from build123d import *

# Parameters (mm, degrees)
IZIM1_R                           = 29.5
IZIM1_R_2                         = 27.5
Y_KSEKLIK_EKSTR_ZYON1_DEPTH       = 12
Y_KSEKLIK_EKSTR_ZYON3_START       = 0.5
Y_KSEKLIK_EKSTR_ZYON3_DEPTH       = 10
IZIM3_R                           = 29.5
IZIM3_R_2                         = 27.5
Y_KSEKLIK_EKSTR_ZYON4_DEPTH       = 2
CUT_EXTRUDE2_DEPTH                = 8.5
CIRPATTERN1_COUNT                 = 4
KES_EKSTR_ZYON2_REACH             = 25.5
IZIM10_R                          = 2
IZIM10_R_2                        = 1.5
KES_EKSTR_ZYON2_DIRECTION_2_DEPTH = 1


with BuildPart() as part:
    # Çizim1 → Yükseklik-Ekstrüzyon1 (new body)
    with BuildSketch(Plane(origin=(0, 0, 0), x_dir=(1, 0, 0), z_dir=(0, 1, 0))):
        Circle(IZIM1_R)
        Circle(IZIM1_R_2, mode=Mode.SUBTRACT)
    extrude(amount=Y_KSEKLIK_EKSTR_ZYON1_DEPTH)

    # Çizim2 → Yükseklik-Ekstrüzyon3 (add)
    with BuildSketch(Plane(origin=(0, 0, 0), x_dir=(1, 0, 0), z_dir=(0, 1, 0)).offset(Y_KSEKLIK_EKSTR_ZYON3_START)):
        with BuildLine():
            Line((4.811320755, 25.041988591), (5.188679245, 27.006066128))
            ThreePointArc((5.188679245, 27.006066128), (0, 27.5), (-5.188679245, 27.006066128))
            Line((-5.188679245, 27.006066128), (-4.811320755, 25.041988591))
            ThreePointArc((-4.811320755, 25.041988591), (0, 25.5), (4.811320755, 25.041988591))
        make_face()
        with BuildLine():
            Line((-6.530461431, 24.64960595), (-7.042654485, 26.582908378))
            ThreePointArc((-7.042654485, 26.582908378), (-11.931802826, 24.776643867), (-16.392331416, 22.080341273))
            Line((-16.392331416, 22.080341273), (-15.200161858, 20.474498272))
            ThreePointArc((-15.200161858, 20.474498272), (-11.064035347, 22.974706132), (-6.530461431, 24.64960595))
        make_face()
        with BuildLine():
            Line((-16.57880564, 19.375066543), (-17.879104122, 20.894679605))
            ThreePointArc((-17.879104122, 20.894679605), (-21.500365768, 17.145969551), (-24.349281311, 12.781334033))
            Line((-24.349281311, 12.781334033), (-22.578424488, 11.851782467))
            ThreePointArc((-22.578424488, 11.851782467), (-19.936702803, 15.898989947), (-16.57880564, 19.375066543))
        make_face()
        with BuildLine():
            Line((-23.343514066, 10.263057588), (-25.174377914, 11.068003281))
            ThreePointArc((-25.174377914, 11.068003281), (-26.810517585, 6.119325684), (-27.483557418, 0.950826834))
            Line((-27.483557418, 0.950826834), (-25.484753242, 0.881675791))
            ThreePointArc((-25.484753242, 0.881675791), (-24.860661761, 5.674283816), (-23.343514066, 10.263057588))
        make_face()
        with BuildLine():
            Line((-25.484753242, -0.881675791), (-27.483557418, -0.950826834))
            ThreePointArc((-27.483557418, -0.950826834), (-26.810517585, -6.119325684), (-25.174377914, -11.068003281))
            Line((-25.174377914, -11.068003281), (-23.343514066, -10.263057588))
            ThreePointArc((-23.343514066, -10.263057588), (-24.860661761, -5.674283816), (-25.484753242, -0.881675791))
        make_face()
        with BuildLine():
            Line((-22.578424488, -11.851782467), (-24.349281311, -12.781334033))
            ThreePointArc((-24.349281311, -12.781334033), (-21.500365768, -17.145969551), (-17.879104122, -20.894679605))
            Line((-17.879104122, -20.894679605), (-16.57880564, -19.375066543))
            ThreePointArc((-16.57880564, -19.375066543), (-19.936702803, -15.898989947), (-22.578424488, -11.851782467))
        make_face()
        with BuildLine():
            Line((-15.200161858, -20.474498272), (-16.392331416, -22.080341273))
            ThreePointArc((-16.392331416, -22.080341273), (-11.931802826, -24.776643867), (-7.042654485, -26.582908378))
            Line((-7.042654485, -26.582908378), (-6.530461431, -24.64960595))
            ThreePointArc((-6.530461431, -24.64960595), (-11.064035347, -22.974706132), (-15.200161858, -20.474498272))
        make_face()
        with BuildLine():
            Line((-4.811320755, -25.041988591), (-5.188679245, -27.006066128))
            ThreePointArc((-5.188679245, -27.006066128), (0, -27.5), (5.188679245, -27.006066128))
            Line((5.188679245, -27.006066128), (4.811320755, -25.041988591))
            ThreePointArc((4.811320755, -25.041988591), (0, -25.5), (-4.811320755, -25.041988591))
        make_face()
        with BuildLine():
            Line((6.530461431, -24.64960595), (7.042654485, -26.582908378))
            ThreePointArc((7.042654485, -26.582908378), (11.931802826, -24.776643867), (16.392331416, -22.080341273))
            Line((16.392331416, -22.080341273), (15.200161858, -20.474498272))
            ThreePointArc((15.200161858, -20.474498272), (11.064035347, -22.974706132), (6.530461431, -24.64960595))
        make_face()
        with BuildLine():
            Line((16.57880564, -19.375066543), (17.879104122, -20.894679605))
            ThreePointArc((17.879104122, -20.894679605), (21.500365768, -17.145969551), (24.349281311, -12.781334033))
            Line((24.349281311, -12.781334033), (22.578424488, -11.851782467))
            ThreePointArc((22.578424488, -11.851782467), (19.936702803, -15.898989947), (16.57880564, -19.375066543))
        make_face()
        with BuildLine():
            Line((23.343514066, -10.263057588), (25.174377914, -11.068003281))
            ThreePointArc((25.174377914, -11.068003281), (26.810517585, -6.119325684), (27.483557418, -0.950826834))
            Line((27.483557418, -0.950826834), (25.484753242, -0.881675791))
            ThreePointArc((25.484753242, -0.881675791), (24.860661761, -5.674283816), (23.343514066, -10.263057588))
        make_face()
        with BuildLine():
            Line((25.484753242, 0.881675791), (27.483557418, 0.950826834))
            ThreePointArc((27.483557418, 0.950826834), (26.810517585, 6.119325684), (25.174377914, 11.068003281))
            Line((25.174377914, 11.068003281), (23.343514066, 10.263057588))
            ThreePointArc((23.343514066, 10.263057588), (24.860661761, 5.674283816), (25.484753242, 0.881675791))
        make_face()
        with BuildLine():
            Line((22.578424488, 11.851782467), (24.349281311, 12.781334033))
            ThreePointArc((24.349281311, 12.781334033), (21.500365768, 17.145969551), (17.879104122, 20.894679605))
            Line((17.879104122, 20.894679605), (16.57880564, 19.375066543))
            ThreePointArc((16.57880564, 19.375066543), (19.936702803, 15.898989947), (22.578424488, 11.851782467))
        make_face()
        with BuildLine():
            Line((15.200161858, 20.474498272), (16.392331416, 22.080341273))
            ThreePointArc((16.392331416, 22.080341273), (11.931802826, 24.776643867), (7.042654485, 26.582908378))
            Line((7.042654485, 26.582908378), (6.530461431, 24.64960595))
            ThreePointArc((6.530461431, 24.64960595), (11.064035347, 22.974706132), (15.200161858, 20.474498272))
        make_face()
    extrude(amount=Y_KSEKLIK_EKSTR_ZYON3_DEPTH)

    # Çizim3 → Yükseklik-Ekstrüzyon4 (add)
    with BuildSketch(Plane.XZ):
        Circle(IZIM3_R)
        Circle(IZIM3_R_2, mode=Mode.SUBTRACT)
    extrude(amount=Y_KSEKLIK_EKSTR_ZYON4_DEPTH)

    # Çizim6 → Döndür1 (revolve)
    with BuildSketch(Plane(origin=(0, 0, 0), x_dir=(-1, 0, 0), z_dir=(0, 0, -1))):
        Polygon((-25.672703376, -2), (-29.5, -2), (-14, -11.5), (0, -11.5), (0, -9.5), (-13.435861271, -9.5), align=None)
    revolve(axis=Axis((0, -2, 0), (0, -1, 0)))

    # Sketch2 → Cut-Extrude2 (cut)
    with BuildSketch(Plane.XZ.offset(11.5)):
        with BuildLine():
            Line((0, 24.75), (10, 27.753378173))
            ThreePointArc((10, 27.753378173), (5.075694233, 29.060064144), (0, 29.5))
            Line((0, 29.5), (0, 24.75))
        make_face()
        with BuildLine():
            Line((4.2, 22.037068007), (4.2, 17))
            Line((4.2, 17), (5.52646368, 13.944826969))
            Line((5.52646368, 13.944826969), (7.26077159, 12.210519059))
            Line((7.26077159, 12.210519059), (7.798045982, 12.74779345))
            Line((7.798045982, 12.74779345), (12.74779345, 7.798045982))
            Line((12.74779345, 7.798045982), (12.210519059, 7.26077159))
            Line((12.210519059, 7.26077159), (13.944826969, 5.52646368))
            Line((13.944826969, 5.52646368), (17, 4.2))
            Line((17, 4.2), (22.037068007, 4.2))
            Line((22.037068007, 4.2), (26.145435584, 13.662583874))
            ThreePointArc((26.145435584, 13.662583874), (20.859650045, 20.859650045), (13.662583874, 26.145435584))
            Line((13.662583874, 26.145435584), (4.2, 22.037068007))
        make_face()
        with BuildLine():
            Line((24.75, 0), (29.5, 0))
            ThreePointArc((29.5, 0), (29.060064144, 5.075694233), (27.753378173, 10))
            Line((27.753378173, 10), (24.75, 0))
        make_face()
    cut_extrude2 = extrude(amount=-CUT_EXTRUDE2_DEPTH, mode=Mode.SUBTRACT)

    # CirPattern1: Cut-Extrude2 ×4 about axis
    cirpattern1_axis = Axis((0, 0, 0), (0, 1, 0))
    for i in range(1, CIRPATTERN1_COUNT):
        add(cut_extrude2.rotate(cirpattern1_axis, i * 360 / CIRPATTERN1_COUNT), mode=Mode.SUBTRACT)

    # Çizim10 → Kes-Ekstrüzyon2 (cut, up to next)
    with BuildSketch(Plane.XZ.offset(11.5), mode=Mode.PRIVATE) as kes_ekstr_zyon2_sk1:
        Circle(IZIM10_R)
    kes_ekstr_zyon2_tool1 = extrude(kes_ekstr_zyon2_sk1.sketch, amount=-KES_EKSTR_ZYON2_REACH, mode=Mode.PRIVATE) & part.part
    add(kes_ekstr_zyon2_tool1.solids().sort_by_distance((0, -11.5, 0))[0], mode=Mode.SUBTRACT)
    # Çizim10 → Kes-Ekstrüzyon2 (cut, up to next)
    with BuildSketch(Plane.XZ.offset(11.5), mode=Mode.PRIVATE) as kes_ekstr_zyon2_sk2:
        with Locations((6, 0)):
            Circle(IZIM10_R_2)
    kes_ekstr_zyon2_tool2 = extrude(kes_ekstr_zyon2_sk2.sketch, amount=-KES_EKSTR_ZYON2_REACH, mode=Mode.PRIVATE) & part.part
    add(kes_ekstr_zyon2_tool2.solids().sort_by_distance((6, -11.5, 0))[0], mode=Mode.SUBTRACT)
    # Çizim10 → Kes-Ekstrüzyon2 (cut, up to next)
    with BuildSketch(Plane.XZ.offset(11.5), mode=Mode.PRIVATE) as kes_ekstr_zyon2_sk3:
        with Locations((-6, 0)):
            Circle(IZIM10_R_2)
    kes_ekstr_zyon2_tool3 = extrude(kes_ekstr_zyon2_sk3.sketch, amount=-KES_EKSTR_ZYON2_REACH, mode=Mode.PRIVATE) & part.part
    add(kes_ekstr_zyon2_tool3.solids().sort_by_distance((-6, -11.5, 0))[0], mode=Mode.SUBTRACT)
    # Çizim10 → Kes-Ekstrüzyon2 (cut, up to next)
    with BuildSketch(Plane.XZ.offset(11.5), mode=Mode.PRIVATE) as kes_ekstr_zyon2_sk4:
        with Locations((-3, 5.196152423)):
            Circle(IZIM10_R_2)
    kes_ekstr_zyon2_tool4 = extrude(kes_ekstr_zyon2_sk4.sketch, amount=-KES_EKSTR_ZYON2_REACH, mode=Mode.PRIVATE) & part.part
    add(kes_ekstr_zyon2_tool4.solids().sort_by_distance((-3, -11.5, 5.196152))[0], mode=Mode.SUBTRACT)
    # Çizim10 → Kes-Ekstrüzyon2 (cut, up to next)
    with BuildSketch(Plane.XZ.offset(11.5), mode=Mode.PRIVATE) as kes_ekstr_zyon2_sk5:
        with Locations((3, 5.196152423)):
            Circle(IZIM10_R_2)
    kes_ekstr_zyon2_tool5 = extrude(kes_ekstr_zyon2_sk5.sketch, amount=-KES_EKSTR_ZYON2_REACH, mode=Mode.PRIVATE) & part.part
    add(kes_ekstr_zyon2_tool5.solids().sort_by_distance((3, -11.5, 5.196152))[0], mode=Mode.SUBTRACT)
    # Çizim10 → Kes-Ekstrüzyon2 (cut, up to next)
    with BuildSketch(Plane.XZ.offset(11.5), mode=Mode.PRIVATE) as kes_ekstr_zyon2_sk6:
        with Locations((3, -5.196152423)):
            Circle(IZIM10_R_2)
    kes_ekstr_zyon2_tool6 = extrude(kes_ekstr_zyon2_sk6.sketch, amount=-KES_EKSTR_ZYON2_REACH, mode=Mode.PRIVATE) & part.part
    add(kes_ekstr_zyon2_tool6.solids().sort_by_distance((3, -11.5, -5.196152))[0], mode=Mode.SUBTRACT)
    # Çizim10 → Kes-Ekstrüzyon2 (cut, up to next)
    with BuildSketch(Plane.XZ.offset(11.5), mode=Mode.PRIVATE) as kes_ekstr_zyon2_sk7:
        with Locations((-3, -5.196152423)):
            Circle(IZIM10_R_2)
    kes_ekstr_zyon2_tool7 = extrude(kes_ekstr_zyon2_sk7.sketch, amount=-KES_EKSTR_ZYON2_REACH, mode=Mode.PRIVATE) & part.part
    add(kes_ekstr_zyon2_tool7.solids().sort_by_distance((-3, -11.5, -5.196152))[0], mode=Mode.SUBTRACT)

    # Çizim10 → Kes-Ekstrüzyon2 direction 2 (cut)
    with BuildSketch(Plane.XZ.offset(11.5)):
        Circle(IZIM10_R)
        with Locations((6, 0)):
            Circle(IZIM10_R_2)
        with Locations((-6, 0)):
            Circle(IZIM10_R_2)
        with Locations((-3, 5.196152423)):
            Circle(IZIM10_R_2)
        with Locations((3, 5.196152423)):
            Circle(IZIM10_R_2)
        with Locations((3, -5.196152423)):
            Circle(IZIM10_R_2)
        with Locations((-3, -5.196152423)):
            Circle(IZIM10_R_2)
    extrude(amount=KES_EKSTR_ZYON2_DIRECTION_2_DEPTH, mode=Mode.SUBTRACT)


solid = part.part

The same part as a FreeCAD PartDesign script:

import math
import FreeCAD as App
import Part
import Sketcher
from FreeCAD import Vector
Q = App.Units.Quantity

doc = App.newDocument("Part")
params = doc.addObject("Spreadsheet::Sheet", "Params")
for row, (alias, value) in enumerate([
    ("sketch1_diameter", "59 mm"),
    ("sketch1_diameter2", "55 mm"),
    ("pad1_length", "12 mm"),
    ("sketch2_radius", "27.5 mm"),
    ("sketch2_radius2", "25.5 mm"),
    ("pad2_length", "10 mm"),
    ("sketch3_diameter", "59 mm"),
    ("sketch3_diameter2", "55 mm"),
    ("pad3_length", "2 mm"),
    ("sketch4_width", "14 mm"),
    ("sketch4_height", "2 mm"),
    ("revolution_angle", "360 deg"),
    ("sketch5_radius", "29.5 mm"),
    ("sketch5_length", "7 mm"),
    ("sketch5_width", "4.75 mm"),
    ("pocket1_length", "8.5 mm"),
    ("sketch6_diameter", "4 mm"),
    ("sketch7_diameter", "3 mm"),
    ("sketch8_diameter", "3 mm"),
    ("sketch9_diameter", "3 mm"),
    ("sketch10_diameter", "3 mm"),
    ("sketch11_diameter", "3 mm"),
    ("sketch12_diameter", "3 mm"),
    ("sketch13_diameter", "4 mm"),
    ("sketch13_diameter2", "3 mm"),
    ("pocket9_length", "1 mm"),
], start=1):
    params.set(f"A{row}", alias)
    params.set(f"B{row}", "=" + value)
    params.setAlias(f"B{row}", alias)

body = doc.addObject("PartDesign::Body", "Body")

# Sketch on XZ plane
sketch1 = body.newObject("Sketcher::SketchObject", "Sketch")
sketch1.AttachmentSupport = (doc.getObject("XZ_Plane"), [""])
sketch1.MapMode = "FlatFace"
sketch1.addGeometry(Part.Circle(Vector(0, 0, 0), Vector(0, 0, 1), 30), False)
sketch1.addGeometry(Part.Circle(Vector(0, 0, 0), Vector(0, 0, 1), 28), False)
sketch1.addConstraint(Sketcher.Constraint("Coincident", 0, 3, -1, 1))
sketch1.addConstraint(Sketcher.Constraint("Coincident", 1, 3, -1, 1))
sketch1.addConstraint(Sketcher.Constraint("Diameter", 0, 59.0))
sketch1.addConstraint(Sketcher.Constraint("Diameter", 1, 55.0))
sketch1.setExpression("Constraints[2]", "Params.sketch1_diameter")
sketch1.setExpression("Constraints[3]", "Params.sketch1_diameter2")
pad1 = body.newObject("PartDesign::Pad", "Pad")
pad1.Profile = sketch1
pad1.setExpression("Length", "Params.pad1_length")
pad1.Reversed = True

# Sketch on XZ plane
sketch2 = body.newObject("Sketcher::SketchObject", "Sketch001")
sketch2.AttachmentSupport = (doc.getObject("XZ_Plane"), [""])
sketch2.MapMode = "FlatFace"
sketch2.AttachmentOffset = App.Placement(Vector(0, 0, -0.5), App.Rotation())
sketch2.addGeometry(Part.LineSegment(Vector(4.8, -25, 0), Vector(5.2, -27, 0)), False)
sketch2.addGeometry(Part.ArcOfCircle(Part.Circle(Vector(0, 0, 0), Vector(0, 0, 1), 27.5), math.radians(-101), math.radians(-79)), False)
sketch2.addGeometry(Part.LineSegment(Vector(-5.2, -27, 0), Vector(-4.8, -25, 0)), False)
sketch2.addGeometry(Part.ArcOfCircle(Part.Circle(Vector(0, 0, 0), Vector(0, 0, 1), 25.5), math.radians(-101), math.radians(-79)), False)
sketch2.addGeometry(Part.LineSegment(Vector(-6.5, -24.6, 0), Vector(-7, -26.6, 0)), False)
sketch2.addGeometry(Part.ArcOfCircle(Part.Circle(Vector(0, 0, 0), Vector(0, 0, 1), 27.5), math.radians(-127), math.radians(-105)), False)
sketch2.addGeometry(Part.LineSegment(Vector(-16.4, -22.1, 0), Vector(-15.2, -20.5, 0)), False)
sketch2.addGeometry(Part.ArcOfCircle(Part.Circle(Vector(0, 0, 0), Vector(0, 0, 1), 25.5), math.radians(-127), math.radians(-105)), False)
sketch2.addGeometry(Part.LineSegment(Vector(-16.6, -19.4, 0), Vector(-17.9, -20.9, 0)), False)
sketch2.addGeometry(Part.ArcOfCircle(Part.Circle(Vector(0, 0, 0), Vector(0, 0, 1), 27.5), math.radians(-152), math.radians(-131)), False)
sketch2.addGeometry(Part.LineSegment(Vector(-24.3, -12.8, 0), Vector(-22.6, -11.9, 0)), False)
sketch2.addGeometry(Part.ArcOfCircle(Part.Circle(Vector(0, 0, 0), Vector(0, 0, 1), 25.5), math.radians(-152), math.radians(-131)), False)
sketch2.addGeometry(Part.LineSegment(Vector(-23.3, -10.3, 0), Vector(-25.2, -11.1, 0)), False)
sketch2.addGeometry(Part.ArcOfCircle(Part.Circle(Vector(0, 0, 0), Vector(0, 0, 1), 27.5), math.radians(-178), math.radians(-156)), False)
sketch2.addGeometry(Part.LineSegment(Vector(-27.5, -1, 0), Vector(-25.5, -0.9, 0)), False)
sketch2.addGeometry(Part.ArcOfCircle(Part.Circle(Vector(0, 0, 0), Vector(0, 0, 1), 25.5), math.radians(-178), math.radians(-156)), False)
sketch2.addGeometry(Part.LineSegment(Vector(-25.5, 0.9, 0), Vector(-27.5, 1, 0)), False)
sketch2.addGeometry(Part.ArcOfCircle(Part.Circle(Vector(0, 0, 0), Vector(0, 0, 1), 27.5), math.radians(156), math.radians(178)), False)
sketch2.addGeometry(Part.LineSegment(Vector(-25.2, 11.1, 0), Vector(-23.3, 10.3, 0)), False)
sketch2.addGeometry(Part.ArcOfCircle(Part.Circle(Vector(0, 0, 0), Vector(0, 0, 1), 25.5), math.radians(156), math.radians(178)), False)
sketch2.addGeometry(Part.LineSegment(Vector(-22.6, 11.9, 0), Vector(-24.3, 12.8, 0)), False)
sketch2.addGeometry(Part.ArcOfCircle(Part.Circle(Vector(0, 0, 0), Vector(0, 0, 1), 27.5), math.radians(131), math.radians(152)), False)
sketch2.addGeometry(Part.LineSegment(Vector(-17.9, 20.9, 0), Vector(-16.6, 19.4, 0)), False)
sketch2.addGeometry(Part.ArcOfCircle(Part.Circle(Vector(0, 0, 0), Vector(0, 0, 1), 25.5), math.radians(131), math.radians(152)), False)
sketch2.addGeometry(Part.LineSegment(Vector(-15.2, 20.5, 0), Vector(-16.4, 22.1, 0)), False)
sketch2.addGeometry(Part.ArcOfCircle(Part.Circle(Vector(0, 0, 0), Vector(0, 0, 1), 27.5), math.radians(105), math.radians(127)), False)
sketch2.addGeometry(Part.LineSegment(Vector(-7, 26.6, 0), Vector(-6.5, 24.6, 0)), False)
sketch2.addGeometry(Part.ArcOfCircle(Part.Circle(Vector(0, 0, 0), Vector(0, 0, 1), 25.5), math.radians(105), math.radians(127)), False)
sketch2.addGeometry(Part.LineSegment(Vector(-4.8, 25, 0), Vector(-5.2, 27, 0)), False)
sketch2.addGeometry(Part.ArcOfCircle(Part.Circle(Vector(0, 0, 0), Vector(0, 0, 1), 27.5), math.radians(79), math.radians(101)), False)
sketch2.addGeometry(Part.LineSegment(Vector(5.2, 27, 0), Vector(4.8, 25, 0)), False)
sketch2.addGeometry(Part.ArcOfCircle(Part.Circle(Vector(0, 0, 0), Vector(0, 0, 1), 25.5), math.radians(79), math.radians(101)), False)
sketch2.addGeometry(Part.LineSegment(Vector(6.5, 24.6, 0), Vector(7, 26.6, 0)), False)
sketch2.addGeometry(Part.ArcOfCircle(Part.Circle(Vector(0, 0, 0), Vector(0, 0, 1), 27.5), math.radians(53), math.radians(75)), False)
sketch2.addGeometry(Part.LineSegment(Vector(16.4, 22.1, 0), Vector(15.2, 20.5, 0)), False)
sketch2.addGeometry(Part.ArcOfCircle(Part.Circle(Vector(0, 0, 0), Vector(0, 0, 1), 25.5), math.radians(53), math.radians(75)), False)
sketch2.addGeometry(Part.LineSegment(Vector(16.6, 19.4, 0), Vector(17.9, 20.9, 0)), False)
sketch2.addGeometry(Part.ArcOfCircle(Part.Circle(Vector(0, 0, 0), Vector(0, 0, 1), 27.5), math.radians(28), math.radians(49)), False)
sketch2.addGeometry(Part.LineSegment(Vector(24.3, 12.8, 0), Vector(22.6, 11.9, 0)), False)
sketch2.addGeometry(Part.ArcOfCircle(Part.Circle(Vector(0, 0, 0), Vector(0, 0, 1), 25.5), math.radians(28), math.radians(49)), False)
sketch2.addGeometry(Part.LineSegment(Vector(23.3, 10.3, 0), Vector(25.2, 11.1, 0)), False)
sketch2.addGeometry(Part.ArcOfCircle(Part.Circle(Vector(0, 0, 0), Vector(0, 0, 1), 27.5), math.radians(2), math.radians(24)), False)
sketch2.addGeometry(Part.LineSegment(Vector(27.5, 1, 0), Vector(25.5, 0.9, 0)), False)
sketch2.addGeometry(Part.ArcOfCircle(Part.Circle(Vector(0, 0, 0), Vector(0, 0, 1), 25.5), math.radians(2), math.radians(24)), False)
sketch2.addGeometry(Part.LineSegment(Vector(25.5, -0.9, 0), Vector(27.5, -1, 0)), False)
sketch2.addGeometry(Part.ArcOfCircle(Part.Circle(Vector(0, 0, 0), Vector(0, 0, 1), 27.5), math.radians(-24), math.radians(-2)), False)
sketch2.addGeometry(Part.LineSegment(Vector(25.2, -11.1, 0), Vector(23.3, -10.3, 0)), False)
sketch2.addGeometry(Part.ArcOfCircle(Part.Circle(Vector(0, 0, 0), Vector(0, 0, 1), 25.5), math.radians(-24), math.radians(-2)), False)
sketch2.addGeometry(Part.LineSegment(Vector(22.6, -11.9, 0), Vector(24.3, -12.8, 0)), False)
sketch2.addGeometry(Part.ArcOfCircle(Part.Circle(Vector(0, 0, 0), Vector(0, 0, 1), 27.5), math.radians(-49), math.radians(-28)), False)
sketch2.addGeometry(Part.LineSegment(Vector(17.9, -20.9, 0), Vector(16.6, -19.4, 0)), False)
sketch2.addGeometry(Part.ArcOfCircle(Part.Circle(Vector(0, 0, 0), Vector(0, 0, 1), 25.5), math.radians(-49), math.radians(-28)), False)
sketch2.addGeometry(Part.LineSegment(Vector(15.2, -20.5, 0), Vector(16.4, -22.1, 0)), False)
sketch2.addGeometry(Part.ArcOfCircle(Part.Circle(Vector(0, 0, 0), Vector(0, 0, 1), 27.5), math.radians(-75), math.radians(-53)), False)
sketch2.addGeometry(Part.LineSegment(Vector(7, -26.6, 0), Vector(6.5, -24.6, 0)), False)
sketch2.addGeometry(Part.ArcOfCircle(Part.Circle(Vector(0, 0, 0), Vector(0, 0, 1), 25.5), math.radians(-75), math.radians(-53)), False)
sketch2.addConstraint(Sketcher.Constraint("Coincident", 0, 2, 1, 2))
sketch2.addConstraint(Sketcher.Constraint("Coincident", 1, 1, 2, 1))
sketch2.addConstraint(Sketcher.Constraint("Coincident", 2, 2, 3, 1))
sketch2.addConstraint(Sketcher.Constraint("Coincident", 3, 2, 0, 1))
sketch2.addConstraint(Sketcher.Constraint("Coincident", 4, 2, 5, 2))
sketch2.addConstraint(Sketcher.Constraint("Coincident", 5, 1, 6, 1))
sketch2.addConstraint(Sketcher.Constraint("Coincident", 6, 2, 7, 1))
sketch2.addConstraint(Sketcher.Constraint("Coincident", 7, 2, 4, 1))
sketch2.addConstraint(Sketcher.Constraint("Coincident", 8, 2, 9, 2))
sketch2.addConstraint(Sketcher.Constraint("Coincident", 9, 1, 10, 1))
sketch2.addConstraint(Sketcher.Constraint("Coincident", 10, 2, 11, 1))
sketch2.addConstraint(Sketcher.Constraint("Coincident", 11, 2, 8, 1))
sketch2.addConstraint(Sketcher.Constraint("Coincident", 12, 2, 13, 2))
sketch2.addConstraint(Sketcher.Constraint("Coincident", 13, 1, 14, 1))
sketch2.addConstraint(Sketcher.Constraint("Coincident", 14, 2, 15, 1))
sketch2.addConstraint(Sketcher.Constraint("Coincident", 15, 2, 12, 1))
sketch2.addConstraint(Sketcher.Constraint("Coincident", 16, 2, 17, 2))
sketch2.addConstraint(Sketcher.Constraint("Coincident", 17, 1, 18, 1))
sketch2.addConstraint(Sketcher.Constraint("Coincident", 18, 2, 19, 1))
sketch2.addConstraint(Sketcher.Constraint("Coincident", 19, 2, 16, 1))
sketch2.addConstraint(Sketcher.Constraint("Coincident", 20, 2, 21, 2))
sketch2.addConstraint(Sketcher.Constraint("Coincident", 21, 1, 22, 1))
sketch2.addConstraint(Sketcher.Constraint("Coincident", 22, 2, 23, 1))
sketch2.addConstraint(Sketcher.Constraint("Coincident", 23, 2, 20, 1))
sketch2.addConstraint(Sketcher.Constraint("Coincident", 24, 2, 25, 2))
sketch2.addConstraint(Sketcher.Constraint("Coincident", 25, 1, 26, 1))
sketch2.addConstraint(Sketcher.Constraint("Coincident", 26, 2, 27, 1))
sketch2.addConstraint(Sketcher.Constraint("Coincident", 27, 2, 24, 1))
sketch2.addConstraint(Sketcher.Constraint("Coincident", 28, 2, 29, 2))
sketch2.addConstraint(Sketcher.Constraint("Coincident", 29, 1, 30, 1))
sketch2.addConstraint(Sketcher.Constraint("Coincident", 30, 2, 31, 1))
sketch2.addConstraint(Sketcher.Constraint("Coincident", 31, 2, 28, 1))
sketch2.addConstraint(Sketcher.Constraint("Coincident", 32, 2, 33, 2))
sketch2.addConstraint(Sketcher.Constraint("Coincident", 33, 1, 34, 1))
sketch2.addConstraint(Sketcher.Constraint("Coincident", 34, 2, 35, 1))
sketch2.addConstraint(Sketcher.Constraint("Coincident", 35, 2, 32, 1))
sketch2.addConstraint(Sketcher.Constraint("Coincident", 36, 2, 37, 2))
sketch2.addConstraint(Sketcher.Constraint("Coincident", 37, 1, 38, 1))
sketch2.addConstraint(Sketcher.Constraint("Coincident", 38, 2, 39, 1))
sketch2.addConstraint(Sketcher.Constraint("Coincident", 39, 2, 36, 1))
sketch2.addConstraint(Sketcher.Constraint("Coincident", 40, 2, 41, 2))
sketch2.addConstraint(Sketcher.Constraint("Coincident", 41, 1, 42, 1))
sketch2.addConstraint(Sketcher.Constraint("Coincident", 42, 2, 43, 1))
sketch2.addConstraint(Sketcher.Constraint("Coincident", 43, 2, 40, 1))
sketch2.addConstraint(Sketcher.Constraint("Coincident", 44, 2, 45, 2))
sketch2.addConstraint(Sketcher.Constraint("Coincident", 45, 1, 46, 1))
sketch2.addConstraint(Sketcher.Constraint("Coincident", 46, 2, 47, 1))
sketch2.addConstraint(Sketcher.Constraint("Coincident", 47, 2, 44, 1))
sketch2.addConstraint(Sketcher.Constraint("Coincident", 48, 2, 49, 2))
sketch2.addConstraint(Sketcher.Constraint("Coincident", 49, 1, 50, 1))
sketch2.addConstraint(Sketcher.Constraint("Coincident", 50, 2, 51, 1))
sketch2.addConstraint(Sketcher.Constraint("Coincident", 51, 2, 48, 1))
sketch2.addConstraint(Sketcher.Constraint("Coincident", 52, 2, 53, 2))
sketch2.addConstraint(Sketcher.Constraint("Coincident", 53, 1, 54, 1))
sketch2.addConstraint(Sketcher.Constraint("Coincident", 54, 2, 55, 1))
sketch2.addConstraint(Sketcher.Constraint("Coincident", 55, 2, 52, 1))
sketch2.addConstraint(Sketcher.Constraint("Coincident", 1, 3, -1, 1))
sketch2.addConstraint(Sketcher.Constraint("Coincident", 3, 3, -1, 1))
sketch2.addConstraint(Sketcher.Constraint("Coincident", 5, 3, -1, 1))
sketch2.addConstraint(Sketcher.Constraint("Coincident", 7, 3, -1, 1))
sketch2.addConstraint(Sketcher.Constraint("Coincident", 9, 3, -1, 1))
sketch2.addConstraint(Sketcher.Constraint("Coincident", 11, 3, -1, 1))
sketch2.addConstraint(Sketcher.Constraint("Coincident", 13, 3, -1, 1))
sketch2.addConstraint(Sketcher.Constraint("Coincident", 15, 3, -1, 1))
sketch2.addConstraint(Sketcher.Constraint("Coincident", 17, 3, -1, 1))
sketch2.addConstraint(Sketcher.Constraint("Coincident", 19, 3, -1, 1))
sketch2.addConstraint(Sketcher.Constraint("Coincident", 21, 3, -1, 1))
sketch2.addConstraint(Sketcher.Constraint("Coincident", 23, 3, -1, 1))
sketch2.addConstraint(Sketcher.Constraint("Coincident", 25, 3, -1, 1))
sketch2.addConstraint(Sketcher.Constraint("Coincident", 27, 3, -1, 1))
sketch2.addConstraint(Sketcher.Constraint("Coincident", 29, 3, -1, 1))
sketch2.addConstraint(Sketcher.Constraint("Coincident", 31, 3, -1, 1))
sketch2.addConstraint(Sketcher.Constraint("Coincident", 33, 3, -1, 1))
sketch2.addConstraint(Sketcher.Constraint("Coincident", 35, 3, -1, 1))
sketch2.addConstraint(Sketcher.Constraint("Coincident", 37, 3, -1, 1))
sketch2.addConstraint(Sketcher.Constraint("Coincident", 39, 3, -1, 1))
sketch2.addConstraint(Sketcher.Constraint("Coincident", 41, 3, -1, 1))
sketch2.addConstraint(Sketcher.Constraint("Coincident", 43, 3, -1, 1))
sketch2.addConstraint(Sketcher.Constraint("Coincident", 45, 3, -1, 1))
sketch2.addConstraint(Sketcher.Constraint("Coincident", 47, 3, -1, 1))
sketch2.addConstraint(Sketcher.Constraint("Coincident", 49, 3, -1, 1))
sketch2.addConstraint(Sketcher.Constraint("Coincident", 51, 3, -1, 1))
sketch2.addConstraint(Sketcher.Constraint("Coincident", 53, 3, -1, 1))
sketch2.addConstraint(Sketcher.Constraint("Coincident", 55, 3, -1, 1))
sketch2.addConstraint(Sketcher.Constraint("Equal", 1, 5))
sketch2.addConstraint(Sketcher.Constraint("Equal", 3, 7))
sketch2.addConstraint(Sketcher.Constraint("Equal", 5, 9))
sketch2.addConstraint(Sketcher.Constraint("Equal", 7, 11))
sketch2.addConstraint(Sketcher.Constraint("Equal", 9, 13))
sketch2.addConstraint(Sketcher.Constraint("Equal", 11, 15))
sketch2.addConstraint(Sketcher.Constraint("Equal", 13, 17))
sketch2.addConstraint(Sketcher.Constraint("Equal", 15, 19))
sketch2.addConstraint(Sketcher.Constraint("Equal", 17, 21))
sketch2.addConstraint(Sketcher.Constraint("Equal", 19, 23))
sketch2.addConstraint(Sketcher.Constraint("Equal", 21, 25))
sketch2.addConstraint(Sketcher.Constraint("Equal", 23, 27))
sketch2.addConstraint(Sketcher.Constraint("Equal", 25, 29))
sketch2.addConstraint(Sketcher.Constraint("Equal", 27, 31))
sketch2.addConstraint(Sketcher.Constraint("Equal", 29, 33))
sketch2.addConstraint(Sketcher.Constraint("Equal", 31, 35))
sketch2.addConstraint(Sketcher.Constraint("Equal", 33, 37))
sketch2.addConstraint(Sketcher.Constraint("Equal", 35, 39))
sketch2.addConstraint(Sketcher.Constraint("Equal", 37, 41))
sketch2.addConstraint(Sketcher.Constraint("Equal", 39, 43))
sketch2.addConstraint(Sketcher.Constraint("Equal", 41, 45))
sketch2.addConstraint(Sketcher.Constraint("Equal", 43, 47))
sketch2.addConstraint(Sketcher.Constraint("Equal", 45, 49))
sketch2.addConstraint(Sketcher.Constraint("Equal", 47, 51))
sketch2.addConstraint(Sketcher.Constraint("Equal", 49, 53))
sketch2.addConstraint(Sketcher.Constraint("Equal", 51, 55))
sketch2.addConstraint(Sketcher.Constraint("Parallel", 0, 28))
sketch2.addConstraint(Sketcher.Constraint("Parallel", 2, 30))
sketch2.addConstraint(Sketcher.Constraint("Parallel", 4, 32))
sketch2.addConstraint(Sketcher.Constraint("Parallel", 6, 34))
sketch2.addConstraint(Sketcher.Constraint("Parallel", 8, 36))
sketch2.addConstraint(Sketcher.Constraint("Parallel", 10, 38))
sketch2.addConstraint(Sketcher.Constraint("Parallel", 12, 40))
sketch2.addConstraint(Sketcher.Constraint("Parallel", 14, 42))
sketch2.addConstraint(Sketcher.Constraint("Parallel", 16, 44))
sketch2.addConstraint(Sketcher.Constraint("Parallel", 18, 46))
sketch2.addConstraint(Sketcher.Constraint("Parallel", 20, 48))
sketch2.addConstraint(Sketcher.Constraint("Parallel", 22, 50))
sketch2.addConstraint(Sketcher.Constraint("Parallel", 24, 52))
sketch2.addConstraint(Sketcher.Constraint("Parallel", 26, 54))
sketch2.addConstraint(Sketcher.Constraint("Horizontal", 0, 2, 1, 1))
sketch2.addConstraint(Sketcher.Constraint("Horizontal", 2, 2, 3, 2))
sketch2.addConstraint(Sketcher.Constraint("Horizontal", 28, 2, 29, 1))
sketch2.addConstraint(Sketcher.Constraint("Horizontal", 25, 1, 32, 2))
sketch2.addConstraint(Sketcher.Constraint("Horizontal", 24, 2, 33, 1))
sketch2.addConstraint(Sketcher.Constraint("Horizontal", 27, 2, 34, 2))
sketch2.addConstraint(Sketcher.Constraint("Horizontal", 26, 2, 35, 2))
sketch2.addConstraint(Sketcher.Constraint("Horizontal", 21, 1, 36, 2))
sketch2.addConstraint(Sketcher.Constraint("Horizontal", 20, 2, 37, 1))
sketch2.addConstraint(Sketcher.Constraint("Horizontal", 23, 2, 38, 2))
sketch2.addConstraint(Sketcher.Constraint("Horizontal", 22, 2, 39, 2))
sketch2.addConstraint(Sketcher.Constraint("Horizontal", 17, 1, 40, 2))
sketch2.addConstraint(Sketcher.Constraint("Horizontal", 16, 2, 41, 1))
sketch2.addConstraint(Sketcher.Constraint("Horizontal", 19, 2, 42, 2))
sketch2.addConstraint(Sketcher.Constraint("Horizontal", 18, 2, 43, 2))
sketch2.addConstraint(Sketcher.Constraint("Horizontal", 13, 1, 44, 2))
sketch2.addConstraint(Sketcher.Constraint("Horizontal", 12, 2, 45, 1))
sketch2.addConstraint(Sketcher.Constraint("Horizontal", 9, 1, 48, 2))
sketch2.addConstraint(Sketcher.Constraint("Horizontal", 8, 2, 49, 1))
sketch2.addConstraint(Sketcher.Constraint("Horizontal", 5, 1, 52, 2))
sketch2.addConstraint(Sketcher.Constraint("Horizontal", 4, 2, 53, 1))
sketch2.addConstraint(Sketcher.Constraint("Vertical", 13, 1, 16, 2))
sketch2.addConstraint(Sketcher.Constraint("Vertical", 12, 2, 17, 1))
sketch2.addConstraint(Sketcher.Constraint("Vertical", 9, 1, 20, 2))
sketch2.addConstraint(Sketcher.Constraint("Vertical", 8, 2, 21, 1))
sketch2.addConstraint(Sketcher.Constraint("Vertical", 5, 1, 24, 2))
sketch2.addConstraint(Sketcher.Constraint("Vertical", 4, 2, 25, 1))
sketch2.addConstraint(Sketcher.Constraint("Vertical", 1, 1, 28, 2))
sketch2.addConstraint(Sketcher.Constraint("Radius", 1, 27.5))
sketch2.addConstraint(Sketcher.Constraint("Radius", 3, 25.5))
sketch2.addConstraint(Sketcher.Constraint("Angle", 6, Q("53.409998 deg")))
sketch2.addConstraint(Sketcher.Constraint("DistanceY", 6, 2, -1, 1, 20.474498))
sketch2.addConstraint(Sketcher.Constraint("DistanceX", -1, 1, 0, 2, 5.188679))
sketch2.addConstraint(Sketcher.Constraint("DistanceX", 2, 2, -1, 1, 4.811321))
sketch2.addConstraint(Sketcher.Constraint("DistanceY", 4, 2, -1, 1, 26.582908))
sketch2.addConstraint(Sketcher.Constraint("DistanceX", 7, 2, -1, 1, 6.530461))
sketch2.addConstraint(Sketcher.Constraint("DistanceY", 8, 2, -1, 1, 20.89468))
sketch2.addConstraint(Sketcher.Constraint("DistanceX", 9, 1, -1, 1, 24.349281))
sketch2.addConstraint(Sketcher.Constraint("DistanceX", 10, 2, -1, 1, 22.578424))
sketch2.addConstraint(Sketcher.Constraint("DistanceX", 11, 2, -1, 1, 16.578806))
sketch2.addConstraint(Sketcher.Constraint("DistanceX", 12, 2, -1, 1, 25.174378))
sketch2.addConstraint(Sketcher.Constraint("DistanceX", 13, 1, -1, 1, 27.483557))
sketch2.addConstraint(Sketcher.Constraint("DistanceX", 14, 2, -1, 1, 25.484753))
sketch2.addConstraint(Sketcher.Constraint("DistanceX", 15, 2, -1, 1, 23.343514))
sketch2.setExpression("Constraints[152]", "Params.sketch2_radius")
sketch2.setExpression("Constraints[153]", "Params.sketch2_radius2")
pad2 = body.newObject("PartDesign::Pad", "Pad001")
pad2.Profile = sketch2
pad2.setExpression("Length", "Params.pad2_length")
pad2.Reversed = True

# Sketch on XZ plane
sketch3 = body.newObject("Sketcher::SketchObject", "Sketch002")
sketch3.AttachmentSupport = (doc.getObject("XZ_Plane"), [""])
sketch3.MapMode = "FlatFace"
sketch3.addGeometry(Part.Circle(Vector(0, 0, 0), Vector(0, 0, 1), 30), False)
sketch3.addGeometry(Part.Circle(Vector(0, 0, 0), Vector(0, 0, 1), 28), False)
sketch3.addConstraint(Sketcher.Constraint("Coincident", 0, 3, -1, 1))
sketch3.addConstraint(Sketcher.Constraint("Coincident", 1, 3, -1, 1))
sketch3.addConstraint(Sketcher.Constraint("Diameter", 0, 59.0))
sketch3.addConstraint(Sketcher.Constraint("Diameter", 1, 55.0))
sketch3.setExpression("Constraints[2]", "Params.sketch3_diameter")
sketch3.setExpression("Constraints[3]", "Params.sketch3_diameter2")
pad3 = body.newObject("PartDesign::Pad", "Pad002")
pad3.Profile = sketch3
pad3.setExpression("Length", "Params.pad3_length")

# Sketch on XY plane
sketch4 = body.newObject("Sketcher::SketchObject", "Sketch003")
sketch4.AttachmentSupport = (doc.getObject("XY_Plane"), [""])
sketch4.MapMode = "FlatFace"
sketch4.addGeometry(Part.LineSegment(Vector(25.7, -2, 0), Vector(29.5, -2, 0)), False)
sketch4.addGeometry(Part.LineSegment(Vector(29.5, -2, 0), Vector(14, -11.5, 0)), False)
sketch4.addGeometry(Part.LineSegment(Vector(14, -11.5, 0), Vector(0, -11.5, 0)), False)
sketch4.addGeometry(Part.LineSegment(Vector(0, -11.5, 0), Vector(0, -9.5, 0)), False)
sketch4.addGeometry(Part.LineSegment(Vector(0, -9.5, 0), Vector(13.4, -9.5, 0)), False)
sketch4.addGeometry(Part.LineSegment(Vector(13.4, -9.5, 0), Vector(25.7, -2, 0)), False)
sketch4.addConstraint(Sketcher.Constraint("Coincident", 0, 2, 1, 1))
sketch4.addConstraint(Sketcher.Constraint("Coincident", 1, 2, 2, 1))
sketch4.addConstraint(Sketcher.Constraint("Coincident", 2, 2, 3, 1))
sketch4.addConstraint(Sketcher.Constraint("Coincident", 3, 2, 4, 1))
sketch4.addConstraint(Sketcher.Constraint("Coincident", 4, 2, 5, 1))
sketch4.addConstraint(Sketcher.Constraint("Coincident", 5, 2, 0, 1))
sketch4.addConstraint(Sketcher.Constraint("Horizontal", 0))
sketch4.addConstraint(Sketcher.Constraint("Horizontal", 2))
sketch4.addConstraint(Sketcher.Constraint("Vertical", 3))
sketch4.addConstraint(Sketcher.Constraint("Horizontal", 4))
sketch4.addConstraint(Sketcher.Constraint("PointOnObject", 2, 2, -2))
sketch4.addConstraint(Sketcher.Constraint("Parallel", 1, 5))
sketch4.addConstraint(Sketcher.Constraint("DistanceX", 2, 2, 2, 1, 14.0))
sketch4.addConstraint(Sketcher.Constraint("DistanceY", 3, 1, 3, 2, 2.0))
sketch4.addConstraint(Sketcher.Constraint("DistanceY", 0, 2, -1, 1, 2.0))
sketch4.addConstraint(Sketcher.Constraint("DistanceX", -1, 1, 0, 2, 29.5))
sketch4.addConstraint(Sketcher.Constraint("DistanceY", 1, 2, -1, 1, 11.5))
sketch4.addConstraint(Sketcher.Constraint("DistanceX", 4, 1, 4, 2, 13.435861))
sketch4.setExpression("Constraints[12]", "Params.sketch4_width")
sketch4.setExpression("Constraints[13]", "Params.sketch4_height")
revolution = body.newObject("PartDesign::Revolution", "Revolution")
revolution.Profile = sketch4
revolution.ReferenceAxis = (sketch4, ["V_Axis"])
revolution.setExpression("Angle", "Params.revolution_angle")

# Sketch on XZ plane
sketch5 = body.newObject("Sketcher::SketchObject", "Sketch004")
sketch5.AttachmentSupport = (doc.getObject("XZ_Plane"), [""])
sketch5.MapMode = "FlatFace"
sketch5.AttachmentOffset = App.Placement(Vector(0, 0, 11.5), App.Rotation())
sketch5.addGeometry(Part.LineSegment(Vector(0, 24.8, 0), Vector(10, 27.8, 0)), False)
sketch5.addGeometry(Part.ArcOfCircle(Part.Circle(Vector(0, 0, 0), Vector(0, 0, 1), 29.5), math.radians(70.19), math.radians(90)), False)
sketch5.addGeometry(Part.LineSegment(Vector(0, 29.5, 0), Vector(0, 24.8, 0)), False)
sketch5.addGeometry(Part.LineSegment(Vector(4.2, 22, 0), Vector(4.2, 17, 0)), False)
sketch5.addGeometry(Part.LineSegment(Vector(4.2, 17, 0), Vector(5.5, 13.9, 0)), False)
sketch5.addGeometry(Part.LineSegment(Vector(5.5, 13.9, 0), Vector(7.3, 12.2, 0)), False)
sketch5.addGeometry(Part.LineSegment(Vector(7.3, 12.2, 0), Vector(7.8, 12.7, 0)), False)
sketch5.addGeometry(Part.LineSegment(Vector(7.8, 12.7, 0), Vector(12.7, 7.8, 0)), False)
sketch5.addGeometry(Part.LineSegment(Vector(12.7, 7.8, 0), Vector(12.2, 7.3, 0)), False)
sketch5.addGeometry(Part.LineSegment(Vector(12.2, 7.3, 0), Vector(13.9, 5.5, 0)), False)
sketch5.addGeometry(Part.LineSegment(Vector(13.9, 5.5, 0), Vector(17, 4.2, 0)), False)
sketch5.addGeometry(Part.LineSegment(Vector(17, 4.2, 0), Vector(22, 4.2, 0)), False)
sketch5.addGeometry(Part.LineSegment(Vector(22, 4.2, 0), Vector(26.1, 13.7, 0)), False)
sketch5.addGeometry(Part.ArcOfCircle(Part.Circle(Vector(0, 0, 0), Vector(0, 0, 1), 29.5), math.radians(28), math.radians(62)), False)
sketch5.addGeometry(Part.LineSegment(Vector(13.7, 26.1, 0), Vector(4.2, 22, 0)), False)
sketch5.addGeometry(Part.LineSegment(Vector(24.8, 0, 0), Vector(29.5, 0, 0)), False)
sketch5.addGeometry(Part.ArcOfCircle(Part.Circle(Vector(0, 0, 0), Vector(0, 0, 1), 29.5), math.radians(0), math.radians(19.81)), False)
sketch5.addGeometry(Part.LineSegment(Vector(27.8, 10, 0), Vector(24.8, 0, 0)), False)
sketch5.addConstraint(Sketcher.Constraint("Coincident", 0, 2, 1, 1))
sketch5.addConstraint(Sketcher.Constraint("Coincident", 1, 2, 2, 1))
sketch5.addConstraint(Sketcher.Constraint("Coincident", 2, 2, 0, 1))
sketch5.addConstraint(Sketcher.Constraint("Coincident", 3, 2, 4, 1))
sketch5.addConstraint(Sketcher.Constraint("Coincident", 4, 2, 5, 1))
sketch5.addConstraint(Sketcher.Constraint("Coincident", 5, 2, 6, 1))
sketch5.addConstraint(Sketcher.Constraint("Coincident", 6, 2, 7, 1))
sketch5.addConstraint(Sketcher.Constraint("Coincident", 7, 2, 8, 1))
sketch5.addConstraint(Sketcher.Constraint("Coincident", 8, 2, 9, 1))
sketch5.addConstraint(Sketcher.Constraint("Coincident", 9, 2, 10, 1))
sketch5.addConstraint(Sketcher.Constraint("Coincident", 10, 2, 11, 1))
sketch5.addConstraint(Sketcher.Constraint("Coincident", 11, 2, 12, 1))
sketch5.addConstraint(Sketcher.Constraint("Coincident", 12, 2, 13, 1))
sketch5.addConstraint(Sketcher.Constraint("Coincident", 13, 2, 14, 1))
sketch5.addConstraint(Sketcher.Constraint("Coincident", 14, 2, 3, 1))
sketch5.addConstraint(Sketcher.Constraint("Coincident", 15, 2, 16, 1))
sketch5.addConstraint(Sketcher.Constraint("Coincident", 16, 2, 17, 1))
sketch5.addConstraint(Sketcher.Constraint("Coincident", 17, 2, 15, 1))
sketch5.addConstraint(Sketcher.Constraint("Vertical", 2))
sketch5.addConstraint(Sketcher.Constraint("Vertical", 3))
sketch5.addConstraint(Sketcher.Constraint("Horizontal", 11))
sketch5.addConstraint(Sketcher.Constraint("Horizontal", 15))
sketch5.addConstraint(Sketcher.Constraint("Coincident", 1, 3, -1, 1))
sketch5.addConstraint(Sketcher.Constraint("Coincident", 13, 3, -1, 1))
sketch5.addConstraint(Sketcher.Constraint("Coincident", 16, 3, -1, 1))
sketch5.addConstraint(Sketcher.Constraint("Equal", 1, 13))
sketch5.addConstraint(Sketcher.Constraint("Equal", 13, 16))
sketch5.addConstraint(Sketcher.Constraint("PointOnObject", 1, 2, -2))
sketch5.addConstraint(Sketcher.Constraint("PointOnObject", 15, 2, -1))
sketch5.addConstraint(Sketcher.Constraint("Perpendicular", 5, 6))
sketch5.addConstraint(Sketcher.Constraint("Perpendicular", 6, 7))
sketch5.addConstraint(Sketcher.Constraint("Perpendicular", 7, 8))
sketch5.addConstraint(Sketcher.Constraint("Perpendicular", 8, 9))
sketch5.addConstraint(Sketcher.Constraint("Perpendicular", 10, 12))
sketch5.addConstraint(Sketcher.Constraint("Perpendicular", 4, 14))
sketch5.addConstraint(Sketcher.Constraint("Equal", 15, 2))
sketch5.addConstraint(Sketcher.Constraint("Equal", 11, 3))
sketch5.addConstraint(Sketcher.Constraint("Equal", 6, 8))
sketch5.addConstraint(Sketcher.Constraint("Equal", 5, 9))
sketch5.addConstraint(Sketcher.Constraint("Equal", 4, 10))
sketch5.addConstraint(Sketcher.Constraint("Equal", 12, 14))
sketch5.addConstraint(Sketcher.Constraint("Equal", 0, 17))
sketch5.addConstraint(Sketcher.Constraint("Radius", 1, 29.5))
sketch5.addConstraint(Sketcher.Constraint("Angle", 5, Q("-45 deg")))
sketch5.addConstraint(Sketcher.Constraint("Distance", 7, 7.0))
sketch5.addConstraint(Sketcher.Constraint("DistanceX", -1, 1, 0, 2, 10.0))
sketch5.addConstraint(Sketcher.Constraint("DistanceY", -1, 1, 3, 2, 17.0))
sketch5.addConstraint(Sketcher.Constraint("DistanceX", -1, 1, 10, 2, 17.0))
sketch5.addConstraint(Sketcher.Constraint("DistanceX", 15, 1, 15, 2, 4.75))
sketch5.addConstraint(Sketcher.Constraint("DistanceX", -1, 1, 3, 2, 4.2))
sketch5.addConstraint(Sketcher.Constraint("DistanceX", 11, 1, 11, 2, 5.037068))
sketch5.addConstraint(Sketcher.Constraint("Distance", 5, 2.452682))
sketch5.addConstraint(Sketcher.Constraint("Distance", 6, 0.759821))
sketch5.addConstraint(Sketcher.Constraint("DistanceX", -1, 1, 5, 2, 7.260772))
sketch5.setExpression("Constraints[42]", "Params.sketch5_radius")
sketch5.setExpression("Constraints[44]", "Params.sketch5_length")
sketch5.setExpression("Constraints[48]", "Params.sketch5_width")
pocket1 = body.newObject("PartDesign::Pocket", "Pocket")
pocket1.Profile = sketch5
pocket1.setExpression("Length", "Params.pocket1_length")
doc.recompute()

polarpattern = body.newObject("PartDesign::PolarPattern", "PolarPattern")
polarpattern.Originals = [pocket1]
polarpattern.Axis = (doc.getObject("Y_Axis"), [""])
polarpattern.Angle = 360
polarpattern.Occurrences = 4
body.Tip = polarpattern

# Sketch on XZ plane
sketch6 = body.newObject("Sketcher::SketchObject", "Sketch005")
sketch6.AttachmentSupport = (doc.getObject("XZ_Plane"), [""])
sketch6.MapMode = "FlatFace"
sketch6.AttachmentOffset = App.Placement(Vector(0, 0, 11.5), App.Rotation())
sketch6.addGeometry(Part.Circle(Vector(0, 0, 0), Vector(0, 0, 1), 2), False)
sketch6.addConstraint(Sketcher.Constraint("Coincident", 0, 3, -1, 1))
sketch6.addConstraint(Sketcher.Constraint("Diameter", 0, 4.0))
sketch6.setExpression("Constraints[1]", "Params.sketch6_diameter")
pocket2 = body.newObject("PartDesign::Pocket", "Pocket001")
pocket2.Profile = sketch6
pocket2.Type = "UpToFirst"

# Sketch on XZ plane
sketch7 = body.newObject("Sketcher::SketchObject", "Sketch006")
sketch7.AttachmentSupport = (doc.getObject("XZ_Plane"), [""])
sketch7.MapMode = "FlatFace"
sketch7.AttachmentOffset = App.Placement(Vector(0, 0, 11.5), App.Rotation())
sketch7.addGeometry(Part.Circle(Vector(6, 0, 0), Vector(0, 0, 1), 1.5), False)
sketch7.addConstraint(Sketcher.Constraint("PointOnObject", 0, 3, -1))
sketch7.addConstraint(Sketcher.Constraint("Diameter", 0, 3.0))
sketch7.addConstraint(Sketcher.Constraint("DistanceX", -1, 1, 0, 3, 6.0))
sketch7.setExpression("Constraints[1]", "Params.sketch7_diameter")
pocket3 = body.newObject("PartDesign::Pocket", "Pocket002")
pocket3.Profile = sketch7
pocket3.Type = "UpToFirst"

# Sketch on XZ plane
sketch8 = body.newObject("Sketcher::SketchObject", "Sketch007")
sketch8.AttachmentSupport = (doc.getObject("XZ_Plane"), [""])
sketch8.MapMode = "FlatFace"
sketch8.AttachmentOffset = App.Placement(Vector(0, 0, 11.5), App.Rotation())
sketch8.addGeometry(Part.Circle(Vector(-6, 0, 0), Vector(0, 0, 1), 1.5), False)
sketch8.addConstraint(Sketcher.Constraint("PointOnObject", 0, 3, -1))
sketch8.addConstraint(Sketcher.Constraint("Diameter", 0, 3.0))
sketch8.addConstraint(Sketcher.Constraint("DistanceX", 0, 3, -1, 1, 6.0))
sketch8.setExpression("Constraints[1]", "Params.sketch8_diameter")
pocket4 = body.newObject("PartDesign::Pocket", "Pocket003")
pocket4.Profile = sketch8
pocket4.Type = "UpToFirst"

# Sketch on XZ plane
sketch9 = body.newObject("Sketcher::SketchObject", "Sketch008")
sketch9.AttachmentSupport = (doc.getObject("XZ_Plane"), [""])
sketch9.MapMode = "FlatFace"
sketch9.AttachmentOffset = App.Placement(Vector(0, 0, 11.5), App.Rotation())
sketch9.addGeometry(Part.Circle(Vector(-3, 5.2, 0), Vector(0, 0, 1), 1.5), False)
sketch9.addConstraint(Sketcher.Constraint("Diameter", 0, 3.0))
sketch9.addConstraint(Sketcher.Constraint("DistanceX", 0, 3, -1, 1, 3.0))
sketch9.addConstraint(Sketcher.Constraint("DistanceY", -1, 1, 0, 3, 5.196152))
sketch9.setExpression("Constraints[0]", "Params.sketch9_diameter")
pocket5 = body.newObject("PartDesign::Pocket", "Pocket004")
pocket5.Profile = sketch9
pocket5.Type = "UpToFirst"

# Sketch on XZ plane
sketch10 = body.newObject("Sketcher::SketchObject", "Sketch009")
sketch10.AttachmentSupport = (doc.getObject("XZ_Plane"), [""])
sketch10.MapMode = "FlatFace"
sketch10.AttachmentOffset = App.Placement(Vector(0, 0, 11.5), App.Rotation())
sketch10.addGeometry(Part.Circle(Vector(3, 5.2, 0), Vector(0, 0, 1), 1.5), False)
sketch10.addConstraint(Sketcher.Constraint("Diameter", 0, 3.0))
sketch10.addConstraint(Sketcher.Constraint("DistanceX", -1, 1, 0, 3, 3.0))
sketch10.addConstraint(Sketcher.Constraint("DistanceY", -1, 1, 0, 3, 5.196152))
sketch10.setExpression("Constraints[0]", "Params.sketch10_diameter")
pocket6 = body.newObject("PartDesign::Pocket", "Pocket005")
pocket6.Profile = sketch10
pocket6.Type = "UpToFirst"

# Sketch on XZ plane
sketch11 = body.newObject("Sketcher::SketchObject", "Sketch010")
sketch11.AttachmentSupport = (doc.getObject("XZ_Plane"), [""])
sketch11.MapMode = "FlatFace"
sketch11.AttachmentOffset = App.Placement(Vector(0, 0, 11.5), App.Rotation())
sketch11.addGeometry(Part.Circle(Vector(3, -5.2, 0), Vector(0, 0, 1), 1.5), False)
sketch11.addConstraint(Sketcher.Constraint("Diameter", 0, 3.0))
sketch11.addConstraint(Sketcher.Constraint("DistanceX", -1, 1, 0, 3, 3.0))
sketch11.addConstraint(Sketcher.Constraint("DistanceY", 0, 3, -1, 1, 5.196152))
sketch11.setExpression("Constraints[0]", "Params.sketch11_diameter")
pocket7 = body.newObject("PartDesign::Pocket", "Pocket006")
pocket7.Profile = sketch11
pocket7.Type = "UpToFirst"

# Sketch on XZ plane
sketch12 = body.newObject("Sketcher::SketchObject", "Sketch011")
sketch12.AttachmentSupport = (doc.getObject("XZ_Plane"), [""])
sketch12.MapMode = "FlatFace"
sketch12.AttachmentOffset = App.Placement(Vector(0, 0, 11.5), App.Rotation())
sketch12.addGeometry(Part.Circle(Vector(-3, -5.2, 0), Vector(0, 0, 1), 1.5), False)
sketch12.addConstraint(Sketcher.Constraint("Diameter", 0, 3.0))
sketch12.addConstraint(Sketcher.Constraint("DistanceX", 0, 3, -1, 1, 3.0))
sketch12.addConstraint(Sketcher.Constraint("DistanceY", 0, 3, -1, 1, 5.196152))
sketch12.setExpression("Constraints[0]", "Params.sketch12_diameter")
pocket8 = body.newObject("PartDesign::Pocket", "Pocket007")
pocket8.Profile = sketch12
pocket8.Type = "UpToFirst"

# Sketch on XZ plane
sketch13 = body.newObject("Sketcher::SketchObject", "Sketch012")
sketch13.AttachmentSupport = (doc.getObject("XZ_Plane"), [""])
sketch13.MapMode = "FlatFace"
sketch13.AttachmentOffset = App.Placement(Vector(0, 0, 11.5), App.Rotation())
sketch13.addGeometry(Part.Circle(Vector(0, 0, 0), Vector(0, 0, 1), 2), False)
sketch13.addGeometry(Part.Circle(Vector(6, 0, 0), Vector(0, 0, 1), 1.5), False)
sketch13.addGeometry(Part.Circle(Vector(-6, 0, 0), Vector(0, 0, 1), 1.5), False)
sketch13.addGeometry(Part.Circle(Vector(-3, 5.2, 0), Vector(0, 0, 1), 1.5), False)
sketch13.addGeometry(Part.Circle(Vector(3, 5.2, 0), Vector(0, 0, 1), 1.5), False)
sketch13.addGeometry(Part.Circle(Vector(3, -5.2, 0), Vector(0, 0, 1), 1.5), False)
sketch13.addGeometry(Part.Circle(Vector(-3, -5.2, 0), Vector(0, 0, 1), 1.5), False)
sketch13.addConstraint(Sketcher.Constraint("Coincident", 0, 3, -1, 1))
sketch13.addConstraint(Sketcher.Constraint("Equal", 1, 2))
sketch13.addConstraint(Sketcher.Constraint("Equal", 2, 3))
sketch13.addConstraint(Sketcher.Constraint("Equal", 3, 4))
sketch13.addConstraint(Sketcher.Constraint("Equal", 4, 5))
sketch13.addConstraint(Sketcher.Constraint("Equal", 5, 6))
sketch13.addConstraint(Sketcher.Constraint("Symmetric", 1, 3, 2, 3, -1, 1))
sketch13.addConstraint(Sketcher.Constraint("Symmetric", 3, 3, 5, 3, -1, 1))
sketch13.addConstraint(Sketcher.Constraint("Symmetric", 4, 3, 6, 3, -1, 1))
sketch13.addConstraint(Sketcher.Constraint("Symmetric", 3, 3, 4, 3, -2))
sketch13.addConstraint(Sketcher.Constraint("PointOnObject", 1, 3, -1))
sketch13.addConstraint(Sketcher.Constraint("Diameter", 0, 4.0))
sketch13.addConstraint(Sketcher.Constraint("Diameter", 1, 3.0))
sketch13.addConstraint(Sketcher.Constraint("DistanceX", -1, 1, 1, 3, 6.0))
sketch13.addConstraint(Sketcher.Constraint("DistanceX", 3, 3, -1, 1, 3.0))
sketch13.addConstraint(Sketcher.Constraint("DistanceY", -1, 1, 3, 3, 5.196152))
sketch13.setExpression("Constraints[11]", "Params.sketch13_diameter")
sketch13.setExpression("Constraints[12]", "Params.sketch13_diameter2")
pocket9 = body.newObject("PartDesign::Pocket", "Pocket008")
pocket9.Profile = sketch13
pocket9.setExpression("Length", "Params.pocket9_length")
pocket9.Reversed = True

doc.recompute()
